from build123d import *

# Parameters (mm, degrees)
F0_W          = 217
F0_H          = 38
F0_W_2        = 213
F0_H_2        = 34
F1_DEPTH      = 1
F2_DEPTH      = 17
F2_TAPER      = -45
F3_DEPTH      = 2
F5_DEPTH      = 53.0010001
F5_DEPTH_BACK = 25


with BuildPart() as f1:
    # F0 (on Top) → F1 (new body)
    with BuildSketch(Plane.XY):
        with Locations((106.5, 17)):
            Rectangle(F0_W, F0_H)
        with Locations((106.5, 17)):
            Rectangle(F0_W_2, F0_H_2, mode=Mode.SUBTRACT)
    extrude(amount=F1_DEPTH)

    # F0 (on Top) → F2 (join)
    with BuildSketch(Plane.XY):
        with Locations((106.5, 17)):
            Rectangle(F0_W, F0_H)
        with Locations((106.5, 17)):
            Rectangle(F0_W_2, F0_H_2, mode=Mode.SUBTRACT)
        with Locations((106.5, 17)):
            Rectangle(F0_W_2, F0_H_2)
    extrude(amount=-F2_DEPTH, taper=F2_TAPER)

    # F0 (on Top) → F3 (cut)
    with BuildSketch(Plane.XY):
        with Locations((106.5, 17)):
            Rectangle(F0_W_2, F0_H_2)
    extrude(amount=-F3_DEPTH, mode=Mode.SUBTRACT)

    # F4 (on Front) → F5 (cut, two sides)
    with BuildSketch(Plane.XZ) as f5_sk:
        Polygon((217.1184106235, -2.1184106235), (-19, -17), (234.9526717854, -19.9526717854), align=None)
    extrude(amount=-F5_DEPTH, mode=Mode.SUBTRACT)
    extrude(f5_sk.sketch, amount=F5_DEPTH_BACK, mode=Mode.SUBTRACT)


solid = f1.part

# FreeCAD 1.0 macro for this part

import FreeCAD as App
import Part
import Sketcher
from FreeCAD import Vector
Q = App.Units.Quantity

doc = App.newDocument("Part")
body = doc.addObject("PartDesign::Body", "Body")

# Sketch on XY plane
sketch1 = body.newObject("Sketcher::SketchObject", "Sketch")
sketch1.AttachmentSupport = (doc.getObject("XY_Plane"), [""])
sketch1.MapMode = "FlatFace"
sketch1.addGeometry([
    Part.LineSegment(Vector(-2, 36, 0), Vector(-2, -2, 0)),  # 0
    Part.LineSegment(Vector(-2, -2, 0), Vector(215, -2, 0)),  # 1
    Part.LineSegment(Vector(215, -2, 0), Vector(215, 36, 0)),  # 2
    Part.LineSegment(Vector(215, 36, 0), Vector(-2, 36, 0)),  # 3
    Part.LineSegment(Vector(213, 0, 0), Vector(0, 0, 0)),  # 4
    Part.LineSegment(Vector(0, 0, 0), Vector(0, 34, 0)),  # 5
    Part.LineSegment(Vector(0, 34, 0), Vector(213, 34, 0)),  # 6
    Part.LineSegment(Vector(213, 34, 0), Vector(213, 0, 0)),  # 7
], False)
sketch1.addConstraint([
    Sketcher.Constraint("Coincident", 0, 2, 1, 1),
    Sketcher.Constraint("Coincident", 1, 2, 2, 1),
    Sketcher.Constraint("Coincident", 2, 2, 3, 1),
    Sketcher.Constraint("Coincident", 3, 2, 0, 1),
    Sketcher.Constraint("Coincident", 4, 2, 5, 1),
    Sketcher.Constraint("Coincident", 5, 2, 6, 1),
    Sketcher.Constraint("Coincident", 6, 2, 7, 1),
    Sketcher.Constraint("Coincident", 7, 2, 4, 1),
    Sketcher.Constraint("Vertical", 0),
    Sketcher.Constraint("Horizontal", 1),
    Sketcher.Constraint("Vertical", 2),
    Sketcher.Constraint("Horizontal", 3),
    Sketcher.Constraint("Horizontal", 4),
    Sketcher.Constraint("Vertical", 5),
    Sketcher.Constraint("Horizontal", 6),
    Sketcher.Constraint("Vertical", 7),
    Sketcher.Constraint("Coincident", 4, 2, -1, 1),
    Sketcher.Constraint("DistanceX", 1, 1, 1, 2, 217.0),
    Sketcher.Constraint("DistanceX", 4, 2, 4, 1, 213.0),
    Sketcher.Constraint("DistanceY", 0, 2, 0, 1, 38.0),
    Sketcher.Constraint("DistanceY", 5, 1, 5, 2, 34.0),
    Sketcher.Constraint("DistanceX", 0, 2, -1, 1, 2.0),
    Sketcher.Constraint("DistanceY", 0, 2, -1, 1, 2.0),
])
pad1 = body.newObject("PartDesign::Pad", "Pad")
pad1.Profile = sketch1
pad1.Length = 1

# Sketch on XY plane
sketch2 = body.newObject("Sketcher::SketchObject", "Sketch001")
sketch2.AttachmentSupport = (doc.getObject("XY_Plane"), [""])
sketch2.MapMode = "FlatFace"
sketch2.addGeometry([
    Part.LineSegment(Vector(-2, 36, 0), Vector(-2, -2, 0)),
    Part.LineSegment(Vector(-2, -2, 0), Vector(215, -2, 0)),
    Part.LineSegment(Vector(215, -2, 0), Vector(215, 36, 0)),
    Part.LineSegment(Vector(215, 36, 0), Vector(-2, 36, 0)),
], False)
sketch2.addConstraint([
    Sketcher.Constraint("Coincident", 0, 2, 1, 1),
    Sketcher.Constraint("Coincident", 1, 2, 2, 1),
    Sketcher.Constraint("Coincident", 2, 2, 3, 1),
    Sketcher.Constraint("Coincident", 3, 2, 0, 1),
    Sketcher.Constraint("Vertical", 0),
    Sketcher.Constraint("Horizontal", 1),
    Sketcher.Constraint("Vertical", 2),
    Sketcher.Constraint("Horizontal", 3),
    Sketcher.Constraint("DistanceX", 1, 1, 1, 2, 217.0),
    Sketcher.Constraint("DistanceY", 0, 2, 0, 1, 38.0),
    Sketcher.Constraint("DistanceX", 0, 2, -1, 1, 2.0),
    Sketcher.Constraint("DistanceY", 0, 2, -1, 1, 2.0),
])
pad2 = body.newObject("PartDesign::Pad", "Pad001")
pad2.Profile = sketch2
pad2.Length = 17
pad2.Reversed = True
pad2.TaperAngle = 45

# Sketch on XY plane
sketch3 = body.newObject("Sketcher::SketchObject", "Sketch002")
sketch3.AttachmentSupport = (doc.getObject("XY_Plane"), [""])
sketch3.MapMode = "FlatFace"
sketch3.addGeometry([
    Part.LineSegment(Vector(0, 34, 0), Vector(0, 0, 0)),
    Part.LineSegment(Vector(0, 0, 0), Vector(213, 0, 0)),
    Part.LineSegment(Vector(213, 0, 0), Vector(213, 34, 0)),
    Part.LineSegment(Vector(213, 34, 0), Vector(0, 34, 0)),
], False)
sketch3.addConstraint([
    Sketcher.Constraint("Coincident", 0, 2, 1, 1),
    Sketcher.Constraint("Coincident", 1, 2, 2, 1),
    Sketcher.Constraint("Coincident", 2, 2, 3, 1),
    Sketcher.Constraint("Coincident", 3, 2, 0, 1),
    Sketcher.Constraint("Vertical", 0),
    Sketcher.Constraint("Horizontal", 1),
    Sketcher.Constraint("Vertical", 2),
    Sketcher.Constraint("Horizontal", 3),
    Sketcher.Constraint("Coincident", 0, 2, -1, 1),
    Sketcher.Constraint("DistanceX", 1, 1, 1, 2, 213.0),
    Sketcher.Constraint("DistanceY", 0, 2, 0, 1, 34.0),
])
pocket1 = body.newObject("PartDesign::Pocket", "Pocket")
pocket1.Profile = sketch3
pocket1.Length = 2

# Sketch on XZ plane
sketch4 = body.newObject("Sketcher::SketchObject", "Sketch003")
sketch4.AttachmentSupport = (doc.getObject("XZ_Plane"), [""])
sketch4.MapMode = "FlatFace"
sketch4.addGeometry([
    Part.LineSegment(Vector(217, -2, 0), Vector(-19, -17, 0)),
    Part.LineSegment(Vector(-19, -17, 0), Vector(235, -20, 0)),
    Part.LineSegment(Vector(235, -20, 0), Vector(217, -2, 0)),
], False)
sketch4.addConstraint([
    Sketcher.Constraint("Coincident", 0, 2, 1, 1),
    Sketcher.Constraint("Coincident", 1, 2, 2, 1),
    Sketcher.Constraint("Coincident", 2, 2, 0, 1),
    Sketcher.Constraint("Angle", 2, Q("135 deg")),
    Sketcher.Constraint("DistanceX", 0, 2, -1, 1, 19.0),
    Sketcher.Constraint("DistanceY", 0, 2, -1, 1, 17.0),
    Sketcher.Constraint("Distance", 0, 236.586909),
    Sketcher.Constraint("DistanceX", -1, 1, 1, 2, 234.952672),
    Sketcher.Constraint("DistanceY", 1, 2, -1, 1, 19.952672),
])
pocket2 = body.newObject("PartDesign::Pocket", "Pocket001")
pocket2.Profile = sketch4
pocket2.Type = "ThroughAll"
pocket2.Midplane = True

doc.recompute()
